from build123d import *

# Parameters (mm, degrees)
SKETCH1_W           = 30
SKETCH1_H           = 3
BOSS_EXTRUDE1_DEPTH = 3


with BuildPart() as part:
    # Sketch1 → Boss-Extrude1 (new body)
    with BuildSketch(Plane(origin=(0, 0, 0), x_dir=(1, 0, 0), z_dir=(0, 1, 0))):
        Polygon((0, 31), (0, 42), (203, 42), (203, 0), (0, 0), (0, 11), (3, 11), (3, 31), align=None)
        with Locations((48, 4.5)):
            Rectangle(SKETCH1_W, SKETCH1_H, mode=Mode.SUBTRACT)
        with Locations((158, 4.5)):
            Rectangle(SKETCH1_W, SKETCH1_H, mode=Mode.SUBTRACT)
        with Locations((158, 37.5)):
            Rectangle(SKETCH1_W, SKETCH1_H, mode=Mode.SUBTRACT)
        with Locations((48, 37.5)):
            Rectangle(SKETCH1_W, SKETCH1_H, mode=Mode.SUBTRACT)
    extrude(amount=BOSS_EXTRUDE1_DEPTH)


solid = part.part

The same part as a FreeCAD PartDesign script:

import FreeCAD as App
import Part
import Sketcher
Q = App.Units.Quantity

doc = App.newDocument("Part")
body = doc.addObject("PartDesign::Body", "Body")

# Sketch on XZ plane
sketch1 = body.newObject("Sketcher::SketchObject", "Sketch")
sketch1.AttachmentSupport = (doc.getObject("XZ_Plane"), [""])
sketch1.MapMode = "FlatFace"
sketch1.addGeometry([
    Part.LineSegment(App.Vector(0, -42, 0), App.Vector(0, -31, 0)),  # 0
    Part.LineSegment(App.Vector(0, -31, 0), App.Vector(3, -31, 0)),  # 1
    Part.LineSegment(App.Vector(3, -31, 0), App.Vector(3, -11, 0)),  # 2
    Part.LineSegment(App.Vector(3, -11, 0), App.Vector(0, -11, 0)),  # 3
    Part.LineSegment(App.Vector(0, -11, 0), App.Vector(0, 0, 0)),  # 4
    Part.LineSegment(App.Vector(0, 0, 0), App.Vector(203, 0, 0)),  # 5
    Part.LineSegment(App.Vector(203, 0, 0), App.Vector(203, -42, 0)),  # 6
    Part.LineSegment(App.Vector(203, -42, 0), App.Vector(0, -42, 0)),  # 7
    Part.LineSegment(App.Vector(143, -3, 0), App.Vector(143, -6, 0)),  # 8
    Part.LineSegment(App.Vector(143, -6, 0), App.Vector(173, -6, 0)),  # 9
    Part.LineSegment(App.Vector(173, -6, 0), App.Vector(173, -3, 0)),  # 10
    Part.LineSegment(App.Vector(173, -3, 0), App.Vector(143, -3, 0)),  # 11
    Part.LineSegment(App.Vector(33, -3, 0), App.Vector(33, -6, 0)),  # 12
    Part.LineSegment(App.Vector(33, -6, 0), App.Vector(63, -6, 0)),  # 13
    Part.LineSegment(App.Vector(63, -6, 0), App.Vector(63, -3, 0)),  # 14
    Part.LineSegment(App.Vector(63, -3, 0), App.Vector(33, -3, 0)),  # 15
    Part.LineSegment(App.Vector(143, -36, 0), App.Vector(143, -39, 0)),  # 16
    Part.LineSegment(App.Vector(143, -39, 0), App.Vector(173, -39, 0)),  # 17
    Part.LineSegment(App.Vector(173, -39, 0), App.Vector(173, -36, 0)),  # 18
    Part.LineSegment(App.Vector(173, -36, 0), App.Vector(143, -36, 0)),  # 19
    Part.LineSegment(App.Vector(33, -36, 0), App.Vector(33, -39, 0)),  # 20
    Part.LineSegment(App.Vector(33, -39, 0), App.Vector(63, -39, 0)),  # 21
    Part.LineSegment(App.Vector(63, -39, 0), App.Vector(63, -36, 0)),  # 22
    Part.LineSegment(App.Vector(63, -36, 0), App.Vector(33, -36, 0)),  # 23
], False)
sketch1.addConstraint([
    Sketcher.Constraint("Coincident", 0, 2, 1, 1),
    Sketcher.Constraint("Coincident", 1, 2, 2, 1),
    Sketcher.Constraint("Coincident", 2, 2, 3, 1),
    Sketcher.Constraint("Coincident", 3, 2, 4, 1),
    Sketcher.Constraint("Coincident", 4, 2, 5, 1),
    Sketcher.Constraint("Coincident", 5, 2, 6, 1),
    Sketcher.Constraint("Coincident", 6, 2, 7, 1),
    Sketcher.Constraint("Coincident", 7, 2, 0, 1),
    Sketcher.Constraint("Coincident", 8, 2, 9, 1),
    Sketcher.Constraint("Coincident", 9, 2, 10, 1),
    Sketcher.Constraint("Coincident", 10, 2, 11, 1),
    Sketcher.Constraint("Coincident", 11, 2, 8, 1),
    Sketcher.Constraint("Coincident", 12, 2, 13, 1),
    Sketcher.Constraint("Coincident", 13, 2, 14, 1),
    Sketcher.Constraint("Coincident", 14, 2, 15, 1),
    Sketcher.Constraint("Coincident", 15, 2, 12, 1),
    Sketcher.Constraint("Coincident", 16, 2, 17, 1),
    Sketcher.Constraint("Coincident", 17, 2, 18, 1),
    Sketcher.Constraint("Coincident", 18, 2, 19, 1),
    Sketcher.Constraint("Coincident", 19, 2, 16, 1),
    Sketcher.Constraint("Coincident", 20, 2, 21, 1),
    Sketcher.Constraint("Coincident", 21, 2, 22, 1),
    Sketcher.Constraint("Coincident", 22, 2, 23, 1),
    Sketcher.Constraint("Coincident", 23, 2, 20, 1),
    Sketcher.Constraint("Vertical", 0),
    Sketcher.Constraint("Horizontal", 1),
    Sketcher.Constraint("Vertical", 2),
    Sketcher.Constraint("Horizontal", 3),
    Sketcher.Constraint("Vertical", 4),
    Sketcher.Constraint("Horizontal", 5),
    Sketcher.Constraint("Vertical", 6),
    Sketcher.Constraint("Horizontal", 7),
    Sketcher.Constraint("Vertical", 8),
    Sketcher.Constraint("Horizontal", 9),
    Sketcher.Constraint("Vertical", 10),
    Sketcher.Constraint("Horizontal", 11),
    Sketcher.Constraint("Vertical", 12),
    Sketcher.Constraint("Horizontal", 13),
    Sketcher.Constraint("Vertical", 14),
    Sketcher.Constraint("Horizontal", 15),
    Sketcher.Constraint("Vertical", 16),
    Sketcher.Constraint("Horizontal", 17),
    Sketcher.Constraint("Vertical", 18),
    Sketcher.Constraint("Horizontal", 19),
    Sketcher.Constraint("Vertical", 20),
    Sketcher.Constraint("Horizontal", 21),
    Sketcher.Constraint("Vertical", 22),
    Sketcher.Constraint("Horizontal", 23),
    Sketcher.Constraint("Coincident", 4, 2, -1, 1),
    Sketcher.Constraint("PointOnObject", 0, 2, -2),
    Sketcher.Constraint("Horizontal", 9, 2, 12, 2),
    Sketcher.Constraint("Horizontal", 11, 2, 14, 2),
    Sketcher.Constraint("Horizontal", 17, 2, 20, 2),
    Sketcher.Constraint("Horizontal", 19, 2, 22, 2),
    Sketcher.Constraint("Vertical", 11, 2, 16, 2),
    Sketcher.Constraint("Vertical", 10, 2, 17, 2),
    Sketcher.Constraint("Vertical", 15, 2, 20, 2),
    Sketcher.Constraint("Vertical", 14, 2, 21, 2),
    Sketcher.Constraint("Equal", 11, 13),
    Sketcher.Constraint("Equal", 0, 4),
    Sketcher.Constraint("Equal", 3, 8),
    Sketcher.Constraint("Equal", 14, 16),
    Sketcher.Constraint("DistanceX", 1, 1, 1, 2, Q("3 mm")),
    Sketcher.Constraint("DistanceX", 5, 1, 5, 2, Q("203 mm")),
    Sketcher.Constraint("DistanceX", 9, 1, 9, 2, Q("30 mm")),
    Sketcher.Constraint("DistanceY", 0, 1, 0, 2, Q("11 mm")),
    Sketcher.Constraint("DistanceY", 2, 1, 2, 2, Q("20 mm")),
    Sketcher.Constraint("DistanceX", -1, 1, 8, 2, Q("143 mm")),
    Sketcher.Constraint("DistanceY", 8, 2, -1, 1, Q("6 mm")),
    Sketcher.Constraint("DistanceX", -1, 1, 12, 2, Q("33 mm")),
    Sketcher.Constraint("DistanceY", 16, 2, -1, 1, Q("39 mm")),
])
pad1 = body.newObject("PartDesign::Pad", "Pad")
pad1.Profile = sketch1
pad1.Length = 3
pad1.Reversed = True

doc.recompute()
